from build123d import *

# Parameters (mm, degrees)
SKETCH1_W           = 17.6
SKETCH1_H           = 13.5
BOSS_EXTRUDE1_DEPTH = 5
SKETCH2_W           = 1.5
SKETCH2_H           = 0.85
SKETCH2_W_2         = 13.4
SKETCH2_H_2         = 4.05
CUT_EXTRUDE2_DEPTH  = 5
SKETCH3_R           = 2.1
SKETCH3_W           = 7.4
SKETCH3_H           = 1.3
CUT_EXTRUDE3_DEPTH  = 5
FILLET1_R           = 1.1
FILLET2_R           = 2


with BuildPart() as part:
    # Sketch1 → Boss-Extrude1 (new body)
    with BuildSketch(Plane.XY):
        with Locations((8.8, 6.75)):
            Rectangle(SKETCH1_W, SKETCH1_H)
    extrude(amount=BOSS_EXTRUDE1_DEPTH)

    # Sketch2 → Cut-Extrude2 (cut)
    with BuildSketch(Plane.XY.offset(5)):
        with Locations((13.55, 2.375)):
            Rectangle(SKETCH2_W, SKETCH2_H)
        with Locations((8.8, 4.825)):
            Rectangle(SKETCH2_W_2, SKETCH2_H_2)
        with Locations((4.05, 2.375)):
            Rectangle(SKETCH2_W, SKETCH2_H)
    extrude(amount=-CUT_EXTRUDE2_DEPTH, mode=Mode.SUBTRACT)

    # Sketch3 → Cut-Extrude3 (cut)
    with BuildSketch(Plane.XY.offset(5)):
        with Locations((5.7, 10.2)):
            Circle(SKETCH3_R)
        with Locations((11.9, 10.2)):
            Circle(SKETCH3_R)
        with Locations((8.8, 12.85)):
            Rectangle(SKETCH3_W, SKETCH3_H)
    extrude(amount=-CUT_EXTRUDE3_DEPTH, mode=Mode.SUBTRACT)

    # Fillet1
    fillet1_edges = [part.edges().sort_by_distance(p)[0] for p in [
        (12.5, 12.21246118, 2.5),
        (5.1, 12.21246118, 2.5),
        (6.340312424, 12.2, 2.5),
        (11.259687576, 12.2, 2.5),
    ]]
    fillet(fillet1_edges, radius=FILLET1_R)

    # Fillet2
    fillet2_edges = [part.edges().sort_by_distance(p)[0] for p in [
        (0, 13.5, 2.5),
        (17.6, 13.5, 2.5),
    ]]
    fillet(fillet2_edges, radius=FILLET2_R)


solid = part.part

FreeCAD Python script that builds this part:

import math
import FreeCAD as App
import Part
import Sketcher

V = App.Vector


def edges_at(feature, points):
    """Names of the edges that pass closest to the given points."""
    edges = feature.Shape.Edges
    near = lambda p: min(range(len(edges)), key=lambda i: edges[i].distToShape(Part.Vertex(*p))[0])
    return sorted({f"Edge{near(p) + 1}" for p in points})


def add_polygon(sketch, points):
    """Adds a closed chain of lines whose ends are joined by coincident constraints."""
    first, n = sketch.GeometryCount, len(points)
    for a, b in zip(points, points[1:] + points[:1]):
        sketch.addGeometry(Part.LineSegment(App.Vector(*a, 0), App.Vector(*b, 0)), False)
    for i in range(n):
        sketch.addConstraint(Sketcher.Constraint("Coincident", first + i, 2, first + (i + 1) % n, 1))

doc = App.newDocument("Part")
body = doc.addObject("PartDesign::Body", "Body")

# Sketch on XY plane
sketch1 = doc.addObject("Sketcher::SketchObject", "Sketch")
body.addObject(sketch1)
sketch1.AttachmentSupport = (doc.XY_Plane, [""])
sketch1.MapMode = "FlatFace"
add_polygon(sketch1, [(0, 14), (0, 0), (18, 0), (18, 14)])  # lines 0-3
sketch1.addConstraint([
    Sketcher.Constraint("Vertical", 0),
    Sketcher.Constraint("Horizontal", 1),
    Sketcher.Constraint("Vertical", 2),
    Sketcher.Constraint("Horizontal", 3),
    Sketcher.Constraint("Coincident", 0, 2, -1, 1),
    Sketcher.Constraint("DistanceX", 1, 1, 1, 2, 17.6),
    Sketcher.Constraint("DistanceY", 0, 2, 0, 1, 13.5),
])
pad1 = doc.addObject("PartDesign::Pad", "Pad")
body.addObject(pad1)
pad1.Profile = sketch1
pad1.Length = 5

# Sketch on XY plane
sketch2 = doc.addObject("Sketcher::SketchObject", "Sketch001")
body.addObject(sketch2)
sketch2.AttachmentSupport = (doc.XY_Plane, [""])
sketch2.MapMode = "FlatFace"
sketch2.AttachmentOffset = App.Placement(V(0, 0, 5), App.Rotation())
add_polygon(sketch2, [(12.8, 2.8), (12.8, 1.9), (14.3, 1.9), (14.3, 2.8), (15.5, 2.8), (15.5, 6.8), (2.1, 6.8), (2.1, 2.8), (3.3, 2.8), (3.3, 1.9), (4.8, 1.9), (4.8, 2.8)])  # lines 0-11
sketch2.addConstraint([
    Sketcher.Constraint("Vertical", 0),
    Sketcher.Constraint("Horizontal", 1),
    Sketcher.Constraint("Vertical", 2),
    Sketcher.Constraint("Horizontal", 3),
    Sketcher.Constraint("Vertical", 4),
    Sketcher.Constraint("Horizontal", 5),
    Sketcher.Constraint("Vertical", 6),
    Sketcher.Constraint("Horizontal", 7),
    Sketcher.Constraint("Vertical", 8),
    Sketcher.Constraint("Horizontal", 9),
    Sketcher.Constraint("Vertical", 10),
    Sketcher.Constraint("Horizontal", 11),
    Sketcher.Constraint("Horizontal", 3, 2, 6, 2),
    Sketcher.Constraint("Horizontal", 1, 2, 8, 2),
    Sketcher.Constraint("Horizontal", 7, 2, 10, 2),
    Sketcher.Constraint("Equal", 3, 7),
    Sketcher.Constraint("Equal", 1, 9),
    Sketcher.Constraint("DistanceX", 11, 1, 11, 2, 8.0),
    Sketcher.Constraint("DistanceX", 1, 1, 1, 2, 1.5),
    Sketcher.Constraint("DistanceX", 3, 1, 3, 2, 1.2),
    Sketcher.Constraint("DistanceY", 0, 2, 0, 1, 0.85),
    Sketcher.Constraint("DistanceY", 4, 1, 4, 2, 4.05),
    Sketcher.Constraint("DistanceX", -1, 1, 0, 2, 12.8),
    Sketcher.Constraint("DistanceY", -1, 1, 2, 2, 2.8),
])
pocket1 = doc.addObject("PartDesign::Pocket", "Pocket")
body.addObject(pocket1)
pocket1.Profile = sketch2
pocket1.Length = 5

# Sketch on XY plane
sketch3 = doc.addObject("Sketcher::SketchObject", "Sketch002")
body.addObject(sketch3)
sketch3.AttachmentSupport = (doc.XY_Plane, [""])
sketch3.MapMode = "FlatFace"
sketch3.AttachmentOffset = App.Placement(V(0, 0, 5), App.Rotation())
sketch3.addGeometry([
    Part.ArcOfCircle(Part.Circle(V(5.7, 10.2, 0), V(0, 0, 1), 2.1), math.radians(107), math.radians(432)),  # 0
    Part.LineSegment(V(6.3, 12.2, 0), V(11.3, 12.2, 0)),  # 1
    Part.ArcOfCircle(Part.Circle(V(11.9, 10.2, 0), V(0, 0, 1), 2.1), math.radians(108), math.radians(433)),  # 2
    Part.LineSegment(V(12.5, 12.2, 0), V(12.5, 13.5, 0)),  # 3
    Part.LineSegment(V(12.5, 13.5, 0), V(5.1, 13.5, 0)),  # 4
    Part.LineSegment(V(5.1, 13.5, 0), V(5.1, 12.2, 0)),  # 5
], False)
sketch3.addConstraint([
    Sketcher.Constraint("Coincident", 0, 2, 1, 1),
    Sketcher.Constraint("Coincident", 1, 2, 2, 1),
    Sketcher.Constraint("Coincident", 2, 2, 3, 1),
    Sketcher.Constraint("Coincident", 3, 2, 4, 1),
    Sketcher.Constraint("Coincident", 4, 2, 5, 1),
    Sketcher.Constraint("Coincident", 5, 2, 0, 1),
    Sketcher.Constraint("Horizontal", 1),
    Sketcher.Constraint("Vertical", 3),
    Sketcher.Constraint("Horizontal", 4),
    Sketcher.Constraint("Vertical", 5),
    Sketcher.Constraint("Equal", 0, 2),
    Sketcher.Constraint("Horizontal", 0, 3, 2, 3),
    Sketcher.Constraint("Horizontal", 2, 2, 5, 2),
    Sketcher.Constraint("Radius", 0, 2.1),
    Sketcher.Constraint("DistanceX", 4, 2, 4, 1, 7.4),
    Sketcher.Constraint("DistanceY", 0, 3, 0, 2, 2.0),
    Sketcher.Constraint("DistanceX", -1, 1, 0, 3, 5.7),
    Sketcher.Constraint("DistanceY", -1, 1, 0, 3, 10.2),
    Sketcher.Constraint("DistanceX", -1, 1, 2, 3, 11.9),
    Sketcher.Constraint("DistanceY", -1, 1, 3, 2, 13.5),
])
pocket2 = doc.addObject("PartDesign::Pocket", "Pocket001")
body.addObject(pocket2)
pocket2.Profile = sketch3
pocket2.Length = 5
doc.recompute()

fillet = doc.addObject("PartDesign::Fillet", "Fillet")
body.addObject(fillet)
fillet.Base = (pocket2, edges_at(pocket2, [
    (12.5, 12.212, 2.5),
    (5.1, 12.212, 2.5),
    (6.34, 12.2, 2.5),
    (11.26, 12.2, 2.5),
]))
fillet.Radius = 1.1
doc.recompute()

fillet2 = doc.addObject("PartDesign::Fillet", "Fillet001")
body.addObject(fillet2)
fillet2.Base = (fillet, edges_at(fillet, [(0, 13.5, 2.5), (17.6, 13.5, 2.5)]))
fillet2.Radius = 2

doc.recompute()
